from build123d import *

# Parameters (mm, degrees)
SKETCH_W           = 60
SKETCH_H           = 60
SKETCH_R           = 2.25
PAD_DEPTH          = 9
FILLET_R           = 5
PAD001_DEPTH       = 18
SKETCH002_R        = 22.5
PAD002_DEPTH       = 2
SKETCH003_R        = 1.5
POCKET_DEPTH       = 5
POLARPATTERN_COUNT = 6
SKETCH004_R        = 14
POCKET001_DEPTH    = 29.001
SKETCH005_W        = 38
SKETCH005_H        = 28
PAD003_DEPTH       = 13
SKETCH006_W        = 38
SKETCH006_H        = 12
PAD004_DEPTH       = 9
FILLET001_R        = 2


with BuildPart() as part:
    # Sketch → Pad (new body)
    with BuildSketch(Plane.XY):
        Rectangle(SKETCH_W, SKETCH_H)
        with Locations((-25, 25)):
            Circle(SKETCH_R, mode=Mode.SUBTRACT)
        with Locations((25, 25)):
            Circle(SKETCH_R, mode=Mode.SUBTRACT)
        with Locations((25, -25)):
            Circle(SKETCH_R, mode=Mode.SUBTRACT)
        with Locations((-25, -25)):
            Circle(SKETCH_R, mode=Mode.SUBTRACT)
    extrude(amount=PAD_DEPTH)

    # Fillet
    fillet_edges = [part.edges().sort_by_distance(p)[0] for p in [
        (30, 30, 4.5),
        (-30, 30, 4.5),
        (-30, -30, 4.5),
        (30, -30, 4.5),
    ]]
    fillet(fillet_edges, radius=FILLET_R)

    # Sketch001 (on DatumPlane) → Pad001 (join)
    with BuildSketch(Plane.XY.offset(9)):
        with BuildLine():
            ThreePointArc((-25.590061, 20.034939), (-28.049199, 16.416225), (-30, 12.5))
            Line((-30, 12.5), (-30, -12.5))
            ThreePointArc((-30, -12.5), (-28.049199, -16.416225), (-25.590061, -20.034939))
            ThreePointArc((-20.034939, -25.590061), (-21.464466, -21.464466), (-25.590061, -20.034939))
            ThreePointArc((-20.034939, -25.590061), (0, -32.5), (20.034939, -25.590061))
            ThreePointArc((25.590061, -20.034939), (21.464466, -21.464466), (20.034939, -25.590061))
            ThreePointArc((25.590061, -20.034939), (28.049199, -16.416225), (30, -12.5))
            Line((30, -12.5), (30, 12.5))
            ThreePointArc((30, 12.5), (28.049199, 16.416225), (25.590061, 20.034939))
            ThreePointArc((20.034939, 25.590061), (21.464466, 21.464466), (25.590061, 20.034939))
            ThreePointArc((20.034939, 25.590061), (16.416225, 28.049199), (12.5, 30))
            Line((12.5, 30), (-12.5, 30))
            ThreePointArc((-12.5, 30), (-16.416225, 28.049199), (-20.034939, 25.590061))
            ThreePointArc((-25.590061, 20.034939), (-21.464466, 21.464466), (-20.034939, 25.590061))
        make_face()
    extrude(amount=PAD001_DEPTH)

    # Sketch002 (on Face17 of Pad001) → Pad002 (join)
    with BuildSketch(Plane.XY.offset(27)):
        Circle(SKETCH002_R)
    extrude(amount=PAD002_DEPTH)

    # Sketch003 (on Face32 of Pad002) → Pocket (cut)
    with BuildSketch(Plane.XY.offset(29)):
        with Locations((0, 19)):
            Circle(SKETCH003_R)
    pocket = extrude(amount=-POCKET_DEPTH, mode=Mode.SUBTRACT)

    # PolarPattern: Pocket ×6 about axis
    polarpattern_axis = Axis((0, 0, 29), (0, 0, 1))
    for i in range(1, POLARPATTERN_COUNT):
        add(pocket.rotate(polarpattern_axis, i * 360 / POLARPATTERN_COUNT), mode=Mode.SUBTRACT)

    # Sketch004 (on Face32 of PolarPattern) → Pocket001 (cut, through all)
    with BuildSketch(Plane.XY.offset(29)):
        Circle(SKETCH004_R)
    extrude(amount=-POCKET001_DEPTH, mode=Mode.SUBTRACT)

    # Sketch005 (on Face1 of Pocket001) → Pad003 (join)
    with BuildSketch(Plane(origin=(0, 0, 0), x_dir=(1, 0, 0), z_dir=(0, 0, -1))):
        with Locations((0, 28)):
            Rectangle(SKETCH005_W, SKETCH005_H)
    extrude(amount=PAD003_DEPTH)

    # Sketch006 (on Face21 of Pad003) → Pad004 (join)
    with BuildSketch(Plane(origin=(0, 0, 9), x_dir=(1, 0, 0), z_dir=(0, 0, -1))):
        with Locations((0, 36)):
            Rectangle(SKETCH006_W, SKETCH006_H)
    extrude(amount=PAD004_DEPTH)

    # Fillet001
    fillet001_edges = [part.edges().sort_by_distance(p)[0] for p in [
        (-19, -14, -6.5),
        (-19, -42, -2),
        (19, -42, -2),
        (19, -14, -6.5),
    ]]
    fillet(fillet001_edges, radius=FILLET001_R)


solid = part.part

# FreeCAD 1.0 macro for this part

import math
import FreeCAD as App
import Part
import Sketcher
from FreeCAD import Vector
Q = App.Units.Quantity


def edges_at(feature, points):
    """Names of the edges that pass closest to the given points."""
    edges = feature.Shape.Edges
    near = lambda p: min(range(len(edges)), key=lambda i: edges[i].distToShape(Part.Vertex(*p))[0])
    return sorted({f"Edge{near(p) + 1}" for p in points})

doc = App.newDocument("Part")
body = doc.addObject("PartDesign::Body", "Body")

# Sketch on XY plane
sketch1 = body.newObject("Sketcher::SketchObject", "Sketch")
sketch1.AttachmentSupport = (doc.getObject("XY_Plane"), [""])
sketch1.MapMode = "FlatFace"
sketch1.addGeometry([
    Part.LineSegment(Vector(-30, 30, 0), Vector(-30, -30, 0)),  # 0
    Part.LineSegment(Vector(-30, -30, 0), Vector(30, -30, 0)),  # 1
    Part.LineSegment(Vector(30, -30, 0), Vector(30, 30, 0)),  # 2
    Part.LineSegment(Vector(30, 30, 0), Vector(-30, 30, 0)),  # 3
    Part.Circle(Vector(-25, -25, 0), Vector(0, 0, 1), 2.2),  # 4
    Part.Circle(Vector(25, -25, 0), Vector(0, 0, 1), 2.2),  # 5
    Part.Circle(Vector(-25, 25, 0), Vector(0, 0, 1), 2.2),  # 6
    Part.Circle(Vector(25, 25, 0), Vector(0, 0, 1), 2.2),  # 7
], False)
sketch1.addConstraint([
    Sketcher.Constraint("Coincident", 0, 2, 1, 1),
    Sketcher.Constraint("Coincident", 1, 2, 2, 1),
    Sketcher.Constraint("Coincident", 2, 2, 3, 1),
    Sketcher.Constraint("Coincident", 3, 2, 0, 1),
    Sketcher.Constraint("Vertical", 0),
    Sketcher.Constraint("Horizontal", 1),
    Sketcher.Constraint("Vertical", 2),
    Sketcher.Constraint("Horizontal", 3),
    Sketcher.Constraint("Equal", 4, 5),
    Sketcher.Constraint("Equal", 5, 6),
    Sketcher.Constraint("Equal", 6, 7),
    Sketcher.Constraint("Symmetric", 5, 3, 6, 3, -1, 1),
    Sketcher.Constraint("Symmetric", 4, 3, 7, 3, -1, 1),
    Sketcher.Constraint("Symmetric", 0, 2, 2, 2, -1, 1),
    Sketcher.Constraint("Symmetric", 4, 3, 5, 3, -2),
    Sketcher.Constraint("Equal", 3, 0),
    Sketcher.Constraint("Diameter", 4, Q("4.5 mm")),
    Sketcher.Constraint("DistanceX", 1, 1, 1, 2, Q("60 mm")),
    Sketcher.Constraint("DistanceX", 4, 3, -1, 1, Q("25 mm")),
    Sketcher.Constraint("DistanceY", 4, 3, -1, 1, Q("25 mm")),
])
pad1 = body.newObject("PartDesign::Pad", "Pad")
pad1.Profile = sketch1
pad1.Length = 9
doc.recompute()

fillet = body.newObject("PartDesign::Fillet", "Fillet")
fillet.Base = (pad1, edges_at(pad1, [
    (30, 30, 4.5),
    (-30, 30, 4.5),
    (-30, -30, 4.5),
    (30, -30, 4.5),
]))
fillet.Radius = 5

# Sketch on XY plane
sketch2 = body.newObject("Sketcher::SketchObject", "Sketch001")
sketch2.AttachmentSupport = (doc.getObject("XY_Plane"), [""])
sketch2.MapMode = "FlatFace"
sketch2.AttachmentOffset = App.Placement(Vector(0, 0, 9), App.Rotation())
sketch2.addGeometry([
    Part.ArcOfCircle(Part.Circle(Vector(-0.000009, 0.000006, 0), Vector(0, 0, 1), 32.499989), math.radians(141.941939), math.radians(157.380138)),  # 0
    Part.LineSegment(Vector(-30, 12.5, 0), Vector(-30, -12.5, 0)),  # 1
    Part.ArcOfCircle(Part.Circle(Vector(-0.000009, -0.000006, 0), Vector(0, 0, 1), 32.499989), math.radians(-157.380138), math.radians(-141.941939)),  # 2
    Part.ArcOfCircle(Part.Circle(Vector(-25, -25, 0), Vector(0, 0, 1), 5), math.radians(-6.777391), math.radians(96.777391)),  # 3
    Part.ArcOfCircle(Part.Circle(Vector(0, 0, 0), Vector(0, 0, 1), 32.5), math.radians(-128.058058), math.radians(-51.941942)),  # 4
    Part.ArcOfCircle(Part.Circle(Vector(25, -25, 0), Vector(0, 0, 1), 5), math.radians(83.222609), math.radians(186.777391)),  # 5
    Part.ArcOfCircle(Part.Circle(Vector(0.000009, -0.000006, 0), Vector(0, 0, 1), 32.499989), math.radians(-38.058061), math.radians(-22.619862)),  # 6
    Part.LineSegment(Vector(30, -12.5, 0), Vector(30, 12.5, 0)),  # 7
    Part.ArcOfCircle(Part.Circle(Vector(0.000009, 0.000006, 0), Vector(0, 0, 1), 32.499989), math.radians(22.619862), math.radians(38.058061)),  # 8
    Part.ArcOfCircle(Part.Circle(Vector(25, 25, 0), Vector(0, 0, 1), 5), math.radians(173.222609), math.radians(276.777391)),  # 9
    Part.ArcOfCircle(Part.Circle(Vector(0.000006, 0.000009, 0), Vector(0, 0, 1), 32.499989), math.radians(51.941939), math.radians(67.380138)),  # 10
    Part.LineSegment(Vector(12.5, 30, 0), Vector(-12.5, 30, 0)),  # 11
    Part.ArcOfCircle(Part.Circle(Vector(-0.000006, 0.000009, 0), Vector(0, 0, 1), 32.499989), math.radians(112.619862), math.radians(128.058061)),  # 12
    Part.ArcOfCircle(Part.Circle(Vector(-25, 25, 0), Vector(0, 0, 1), 5), math.radians(-96.777391), math.radians(6.777391)),  # 13
], False)
sketch2.addConstraint([
    Sketcher.Constraint("Coincident", 0, 2, 1, 1),
    Sketcher.Constraint("Coincident", 1, 2, 2, 1),
    Sketcher.Constraint("Coincident", 2, 2, 3, 2),
    Sketcher.Constraint("Coincident", 3, 1, 4, 1),
    Sketcher.Constraint("Coincident", 4, 2, 5, 2),
    Sketcher.Constraint("Coincident", 5, 1, 6, 1),
    Sketcher.Constraint("Coincident", 6, 2, 7, 1),
    Sketcher.Constraint("Coincident", 7, 2, 8, 1),
    Sketcher.Constraint("Coincident", 8, 2, 9, 2),
    Sketcher.Constraint("Coincident", 9, 1, 10, 1),
    Sketcher.Constraint("Coincident", 10, 2, 11, 1),
    Sketcher.Constraint("Coincident", 11, 2, 12, 1),
    Sketcher.Constraint("Coincident", 12, 2, 13, 2),
    Sketcher.Constraint("Coincident", 13, 1, 0, 1),
    Sketcher.Constraint("Vertical", 1),
    Sketcher.Constraint("Vertical", 7),
    Sketcher.Constraint("Horizontal", 11),
    Sketcher.Constraint("Coincident", 4, 3, -1, 1),
    Sketcher.Constraint("Coincident", 10, 3, 8, 3),
    Sketcher.Constraint("Coincident", 12, 3, 0, 3),
    Sketcher.Constraint("Radius", 3, Q("5 mm")),
    Sketcher.Constraint("Radius", 5, Q("5 mm")),
    Sketcher.Constraint("Radius", 9, Q("5 mm")),
    Sketcher.Constraint("Radius", 13, Q("5 mm")),
    Sketcher.Constraint("Radius", 4, Q("32.5 mm")),
    Sketcher.Constraint("DistanceX", 11, 2, 11, 1, Q("25 mm")),
    Sketcher.Constraint("DistanceY", 1, 2, 1, 1, Q("25 mm")),
    Sketcher.Constraint("DistanceY", 7, 1, 7, 2, Q("25 mm")),
    Sketcher.Constraint("DistanceX", 3, 3, -1, 1, Q("25 mm")),
    Sketcher.Constraint("DistanceY", 3, 3, -1, 1, Q("25 mm")),
    Sketcher.Constraint("DistanceX", -1, 1, 5, 3, Q("25 mm")),
    Sketcher.Constraint("DistanceY", 5, 3, -1, 1, Q("25 mm")),
    Sketcher.Constraint("DistanceX", -1, 1, 9, 3, Q("25 mm")),
    Sketcher.Constraint("DistanceY", -1, 1, 9, 3, Q("25 mm")),
    Sketcher.Constraint("DistanceX", 13, 3, -1, 1, Q("25 mm")),
    Sketcher.Constraint("DistanceY", -1, 1, 13, 3, Q("25 mm")),
    Sketcher.Constraint("DistanceX", 0, 2, -1, 1, Q("30 mm")),
    Sketcher.Constraint("DistanceX", -1, 1, 6, 2, Q("30 mm")),
    Sketcher.Constraint("DistanceY", -1, 1, 10, 2, Q("30 mm")),
    Sketcher.Constraint("DistanceY", -1, 1, 0, 2, Q("12.5 mm")),
    Sketcher.Constraint("DistanceY", 6, 2, -1, 1, Q("12.5 mm")),
    Sketcher.Constraint("DistanceX", -1, 1, 10, 2, Q("12.5 mm")),
    Sketcher.Constraint("Radius", 0, Q("32.499989 mm")),
    Sketcher.Constraint("Radius", 2, Q("32.499989 mm")),
    Sketcher.Constraint("Radius", 6, Q("32.499989 mm")),
    Sketcher.Constraint("Radius", 8, Q("32.499989 mm")),
    Sketcher.Constraint("Radius", 10, Q("32.499989 mm")),
    Sketcher.Constraint("Radius", 12, Q("32.499989 mm")),
    Sketcher.Constraint("DistanceX", 2, 2, -1, 1, Q("25.590061 mm")),
    Sketcher.Constraint("DistanceX", -1, 1, 5, 1, Q("25.590061 mm")),
])
pad2 = body.newObject("PartDesign::Pad", "Pad001")
pad2.Profile = sketch2
pad2.Length = 18

# Sketch on XY plane
sketch3 = body.newObject("Sketcher::SketchObject", "Sketch002")
sketch3.AttachmentSupport = (doc.getObject("XY_Plane"), [""])
sketch3.MapMode = "FlatFace"
sketch3.AttachmentOffset = App.Placement(Vector(0, 0, 27), App.Rotation())
sketch3.addGeometry(Part.Circle(Vector(0, 0, 0), Vector(0, 0, 1), 22), False)
sketch3.addConstraint([
    Sketcher.Constraint("Coincident", 0, 3, -1, 1),
    Sketcher.Constraint("Diameter", 0, Q("45 mm")),
])
pad3 = body.newObject("PartDesign::Pad", "Pad002")
pad3.Profile = sketch3
pad3.Length = 2

# Sketch on XY plane
sketch4 = body.newObject("Sketcher::SketchObject", "Sketch003")
sketch4.AttachmentSupport = (doc.getObject("XY_Plane"), [""])
sketch4.MapMode = "FlatFace"
sketch4.AttachmentOffset = App.Placement(Vector(0, 0, 29), App.Rotation())
sketch4.addGeometry(Part.Circle(Vector(0, 19, 0), Vector(0, 0, 1), 1.5), False)
sketch4.addConstraint([
    Sketcher.Constraint("PointOnObject", 0, 3, -2),
    Sketcher.Constraint("Diameter", 0, Q("3 mm")),
    Sketcher.Constraint("DistanceY", -1, 1, 0, 3, Q("19 mm")),
])
pocket1 = body.newObject("PartDesign::Pocket", "Pocket")
pocket1.Profile = sketch4
pocket1.Length = 5
doc.recompute()

polarpattern = body.newObject("PartDesign::PolarPattern", "PolarPattern")
polarpattern.Originals = [pocket1]
polarpattern.Axis = (doc.getObject("Z_Axis"), [""])
polarpattern.Angle = 360
polarpattern.Occurrences = 6
body.Tip = polarpattern

# Sketch on XY plane
sketch5 = body.newObject("Sketcher::SketchObject", "Sketch004")
sketch5.AttachmentSupport = (doc.getObject("XY_Plane"), [""])
sketch5.MapMode = "FlatFace"
sketch5.AttachmentOffset = App.Placement(Vector(0, 0, 29), App.Rotation())
sketch5.addGeometry(Part.Circle(Vector(0, 0, 0), Vector(0, 0, 1), 14), False)
sketch5.addConstraint([
    Sketcher.Constraint("Coincident", 0, 3, -1, 1),
    Sketcher.Constraint("Diameter", 0, Q("28 mm")),
])
pocket2 = body.newObject("PartDesign::Pocket", "Pocket001")
pocket2.Profile = sketch5
pocket2.Type = "ThroughAll"

# Sketch on XY plane
sketch6 = body.newObject("Sketcher::SketchObject", "Sketch005")
sketch6.AttachmentSupport = (doc.getObject("XY_Plane"), [""])
sketch6.MapMode = "FlatFace"
sketch6.addGeometry([
    Part.LineSegment(Vector(-19, -42, 0), Vector(-19, -14, 0)),
    Part.LineSegment(Vector(-19, -14, 0), Vector(19, -14, 0)),
    Part.LineSegment(Vector(19, -14, 0), Vector(19, -42, 0)),
    Part.LineSegment(Vector(19, -42, 0), Vector(-19, -42, 0)),
], False)
sketch6.addConstraint([
    Sketcher.Constraint("Coincident", 0, 2, 1, 1),
    Sketcher.Constraint("Coincident", 1, 2, 2, 1),
    Sketcher.Constraint("Coincident", 2, 2, 3, 1),
    Sketcher.Constraint("Coincident", 3, 2, 0, 1),
    Sketcher.Constraint("Vertical", 0),
    Sketcher.Constraint("Horizontal", 1),
    Sketcher.Constraint("Vertical", 2),
    Sketcher.Constraint("Horizontal", 3),
    Sketcher.Constraint("DistanceX", 1, 1, 1, 2, Q("38 mm")),
    Sketcher.Constraint("DistanceY", 0, 1, 0, 2, Q("28 mm")),
    Sketcher.Constraint("DistanceX", 0, 2, -1, 1, Q("19 mm")),
    Sketcher.Constraint("DistanceY", 0, 2, -1, 1, Q("14 mm")),
])
pad4 = body.newObject("PartDesign::Pad", "Pad003")
pad4.Profile = sketch6
pad4.Length = 13
pad4.Reversed = True

# Sketch on XY plane
sketch7 = body.newObject("Sketcher::SketchObject", "Sketch006")
sketch7.AttachmentSupport = (doc.getObject("XY_Plane"), [""])
sketch7.MapMode = "FlatFace"
sketch7.AttachmentOffset = App.Placement(Vector(0, 0, 9), App.Rotation())
sketch7.addGeometry([
    Part.LineSegment(Vector(-19, -42, 0), Vector(-19, -30, 0)),
    Part.LineSegment(Vector(-19, -30, 0), Vector(19, -30, 0)),
    Part.LineSegment(Vector(19, -30, 0), Vector(19, -42, 0)),
    Part.LineSegment(Vector(19, -42, 0), Vector(-19, -42, 0)),
], False)
sketch7.addConstraint([
    Sketcher.Constraint("Coincident", 0, 2, 1, 1),
    Sketcher.Constraint("Coincident", 1, 2, 2, 1),
    Sketcher.Constraint("Coincident", 2, 2, 3, 1),
    Sketcher.Constraint("Coincident", 3, 2, 0, 1),
    Sketcher.Constraint("Vertical", 0),
    Sketcher.Constraint("Horizontal", 1),
    Sketcher.Constraint("Vertical", 2),
    Sketcher.Constraint("Horizontal", 3),
    Sketcher.Constraint("DistanceX", 1, 1, 1, 2, Q("38 mm")),
    Sketcher.Constraint("DistanceY", 0, 1, 0, 2, Q("12 mm")),
    Sketcher.Constraint("DistanceX", 0, 2, -1, 1, Q("19 mm")),
    Sketcher.Constraint("DistanceY", 0, 2, -1, 1, Q("30 mm")),
])
pad5 = body.newObject("PartDesign::Pad", "Pad004")
pad5.Profile = sketch7
pad5.Length = 9
pad5.Reversed = True
doc.recompute()

fillet2 = body.newObject("PartDesign::Fillet", "Fillet001")
fillet2.Base = (pad5, edges_at(pad5, [
    (-19, -14, -6.5),
    (-19, -42, -2),
    (19, -42, -2),
    (19, -14, -6.5),
]))
fillet2.Radius = 2

doc.recompute()
